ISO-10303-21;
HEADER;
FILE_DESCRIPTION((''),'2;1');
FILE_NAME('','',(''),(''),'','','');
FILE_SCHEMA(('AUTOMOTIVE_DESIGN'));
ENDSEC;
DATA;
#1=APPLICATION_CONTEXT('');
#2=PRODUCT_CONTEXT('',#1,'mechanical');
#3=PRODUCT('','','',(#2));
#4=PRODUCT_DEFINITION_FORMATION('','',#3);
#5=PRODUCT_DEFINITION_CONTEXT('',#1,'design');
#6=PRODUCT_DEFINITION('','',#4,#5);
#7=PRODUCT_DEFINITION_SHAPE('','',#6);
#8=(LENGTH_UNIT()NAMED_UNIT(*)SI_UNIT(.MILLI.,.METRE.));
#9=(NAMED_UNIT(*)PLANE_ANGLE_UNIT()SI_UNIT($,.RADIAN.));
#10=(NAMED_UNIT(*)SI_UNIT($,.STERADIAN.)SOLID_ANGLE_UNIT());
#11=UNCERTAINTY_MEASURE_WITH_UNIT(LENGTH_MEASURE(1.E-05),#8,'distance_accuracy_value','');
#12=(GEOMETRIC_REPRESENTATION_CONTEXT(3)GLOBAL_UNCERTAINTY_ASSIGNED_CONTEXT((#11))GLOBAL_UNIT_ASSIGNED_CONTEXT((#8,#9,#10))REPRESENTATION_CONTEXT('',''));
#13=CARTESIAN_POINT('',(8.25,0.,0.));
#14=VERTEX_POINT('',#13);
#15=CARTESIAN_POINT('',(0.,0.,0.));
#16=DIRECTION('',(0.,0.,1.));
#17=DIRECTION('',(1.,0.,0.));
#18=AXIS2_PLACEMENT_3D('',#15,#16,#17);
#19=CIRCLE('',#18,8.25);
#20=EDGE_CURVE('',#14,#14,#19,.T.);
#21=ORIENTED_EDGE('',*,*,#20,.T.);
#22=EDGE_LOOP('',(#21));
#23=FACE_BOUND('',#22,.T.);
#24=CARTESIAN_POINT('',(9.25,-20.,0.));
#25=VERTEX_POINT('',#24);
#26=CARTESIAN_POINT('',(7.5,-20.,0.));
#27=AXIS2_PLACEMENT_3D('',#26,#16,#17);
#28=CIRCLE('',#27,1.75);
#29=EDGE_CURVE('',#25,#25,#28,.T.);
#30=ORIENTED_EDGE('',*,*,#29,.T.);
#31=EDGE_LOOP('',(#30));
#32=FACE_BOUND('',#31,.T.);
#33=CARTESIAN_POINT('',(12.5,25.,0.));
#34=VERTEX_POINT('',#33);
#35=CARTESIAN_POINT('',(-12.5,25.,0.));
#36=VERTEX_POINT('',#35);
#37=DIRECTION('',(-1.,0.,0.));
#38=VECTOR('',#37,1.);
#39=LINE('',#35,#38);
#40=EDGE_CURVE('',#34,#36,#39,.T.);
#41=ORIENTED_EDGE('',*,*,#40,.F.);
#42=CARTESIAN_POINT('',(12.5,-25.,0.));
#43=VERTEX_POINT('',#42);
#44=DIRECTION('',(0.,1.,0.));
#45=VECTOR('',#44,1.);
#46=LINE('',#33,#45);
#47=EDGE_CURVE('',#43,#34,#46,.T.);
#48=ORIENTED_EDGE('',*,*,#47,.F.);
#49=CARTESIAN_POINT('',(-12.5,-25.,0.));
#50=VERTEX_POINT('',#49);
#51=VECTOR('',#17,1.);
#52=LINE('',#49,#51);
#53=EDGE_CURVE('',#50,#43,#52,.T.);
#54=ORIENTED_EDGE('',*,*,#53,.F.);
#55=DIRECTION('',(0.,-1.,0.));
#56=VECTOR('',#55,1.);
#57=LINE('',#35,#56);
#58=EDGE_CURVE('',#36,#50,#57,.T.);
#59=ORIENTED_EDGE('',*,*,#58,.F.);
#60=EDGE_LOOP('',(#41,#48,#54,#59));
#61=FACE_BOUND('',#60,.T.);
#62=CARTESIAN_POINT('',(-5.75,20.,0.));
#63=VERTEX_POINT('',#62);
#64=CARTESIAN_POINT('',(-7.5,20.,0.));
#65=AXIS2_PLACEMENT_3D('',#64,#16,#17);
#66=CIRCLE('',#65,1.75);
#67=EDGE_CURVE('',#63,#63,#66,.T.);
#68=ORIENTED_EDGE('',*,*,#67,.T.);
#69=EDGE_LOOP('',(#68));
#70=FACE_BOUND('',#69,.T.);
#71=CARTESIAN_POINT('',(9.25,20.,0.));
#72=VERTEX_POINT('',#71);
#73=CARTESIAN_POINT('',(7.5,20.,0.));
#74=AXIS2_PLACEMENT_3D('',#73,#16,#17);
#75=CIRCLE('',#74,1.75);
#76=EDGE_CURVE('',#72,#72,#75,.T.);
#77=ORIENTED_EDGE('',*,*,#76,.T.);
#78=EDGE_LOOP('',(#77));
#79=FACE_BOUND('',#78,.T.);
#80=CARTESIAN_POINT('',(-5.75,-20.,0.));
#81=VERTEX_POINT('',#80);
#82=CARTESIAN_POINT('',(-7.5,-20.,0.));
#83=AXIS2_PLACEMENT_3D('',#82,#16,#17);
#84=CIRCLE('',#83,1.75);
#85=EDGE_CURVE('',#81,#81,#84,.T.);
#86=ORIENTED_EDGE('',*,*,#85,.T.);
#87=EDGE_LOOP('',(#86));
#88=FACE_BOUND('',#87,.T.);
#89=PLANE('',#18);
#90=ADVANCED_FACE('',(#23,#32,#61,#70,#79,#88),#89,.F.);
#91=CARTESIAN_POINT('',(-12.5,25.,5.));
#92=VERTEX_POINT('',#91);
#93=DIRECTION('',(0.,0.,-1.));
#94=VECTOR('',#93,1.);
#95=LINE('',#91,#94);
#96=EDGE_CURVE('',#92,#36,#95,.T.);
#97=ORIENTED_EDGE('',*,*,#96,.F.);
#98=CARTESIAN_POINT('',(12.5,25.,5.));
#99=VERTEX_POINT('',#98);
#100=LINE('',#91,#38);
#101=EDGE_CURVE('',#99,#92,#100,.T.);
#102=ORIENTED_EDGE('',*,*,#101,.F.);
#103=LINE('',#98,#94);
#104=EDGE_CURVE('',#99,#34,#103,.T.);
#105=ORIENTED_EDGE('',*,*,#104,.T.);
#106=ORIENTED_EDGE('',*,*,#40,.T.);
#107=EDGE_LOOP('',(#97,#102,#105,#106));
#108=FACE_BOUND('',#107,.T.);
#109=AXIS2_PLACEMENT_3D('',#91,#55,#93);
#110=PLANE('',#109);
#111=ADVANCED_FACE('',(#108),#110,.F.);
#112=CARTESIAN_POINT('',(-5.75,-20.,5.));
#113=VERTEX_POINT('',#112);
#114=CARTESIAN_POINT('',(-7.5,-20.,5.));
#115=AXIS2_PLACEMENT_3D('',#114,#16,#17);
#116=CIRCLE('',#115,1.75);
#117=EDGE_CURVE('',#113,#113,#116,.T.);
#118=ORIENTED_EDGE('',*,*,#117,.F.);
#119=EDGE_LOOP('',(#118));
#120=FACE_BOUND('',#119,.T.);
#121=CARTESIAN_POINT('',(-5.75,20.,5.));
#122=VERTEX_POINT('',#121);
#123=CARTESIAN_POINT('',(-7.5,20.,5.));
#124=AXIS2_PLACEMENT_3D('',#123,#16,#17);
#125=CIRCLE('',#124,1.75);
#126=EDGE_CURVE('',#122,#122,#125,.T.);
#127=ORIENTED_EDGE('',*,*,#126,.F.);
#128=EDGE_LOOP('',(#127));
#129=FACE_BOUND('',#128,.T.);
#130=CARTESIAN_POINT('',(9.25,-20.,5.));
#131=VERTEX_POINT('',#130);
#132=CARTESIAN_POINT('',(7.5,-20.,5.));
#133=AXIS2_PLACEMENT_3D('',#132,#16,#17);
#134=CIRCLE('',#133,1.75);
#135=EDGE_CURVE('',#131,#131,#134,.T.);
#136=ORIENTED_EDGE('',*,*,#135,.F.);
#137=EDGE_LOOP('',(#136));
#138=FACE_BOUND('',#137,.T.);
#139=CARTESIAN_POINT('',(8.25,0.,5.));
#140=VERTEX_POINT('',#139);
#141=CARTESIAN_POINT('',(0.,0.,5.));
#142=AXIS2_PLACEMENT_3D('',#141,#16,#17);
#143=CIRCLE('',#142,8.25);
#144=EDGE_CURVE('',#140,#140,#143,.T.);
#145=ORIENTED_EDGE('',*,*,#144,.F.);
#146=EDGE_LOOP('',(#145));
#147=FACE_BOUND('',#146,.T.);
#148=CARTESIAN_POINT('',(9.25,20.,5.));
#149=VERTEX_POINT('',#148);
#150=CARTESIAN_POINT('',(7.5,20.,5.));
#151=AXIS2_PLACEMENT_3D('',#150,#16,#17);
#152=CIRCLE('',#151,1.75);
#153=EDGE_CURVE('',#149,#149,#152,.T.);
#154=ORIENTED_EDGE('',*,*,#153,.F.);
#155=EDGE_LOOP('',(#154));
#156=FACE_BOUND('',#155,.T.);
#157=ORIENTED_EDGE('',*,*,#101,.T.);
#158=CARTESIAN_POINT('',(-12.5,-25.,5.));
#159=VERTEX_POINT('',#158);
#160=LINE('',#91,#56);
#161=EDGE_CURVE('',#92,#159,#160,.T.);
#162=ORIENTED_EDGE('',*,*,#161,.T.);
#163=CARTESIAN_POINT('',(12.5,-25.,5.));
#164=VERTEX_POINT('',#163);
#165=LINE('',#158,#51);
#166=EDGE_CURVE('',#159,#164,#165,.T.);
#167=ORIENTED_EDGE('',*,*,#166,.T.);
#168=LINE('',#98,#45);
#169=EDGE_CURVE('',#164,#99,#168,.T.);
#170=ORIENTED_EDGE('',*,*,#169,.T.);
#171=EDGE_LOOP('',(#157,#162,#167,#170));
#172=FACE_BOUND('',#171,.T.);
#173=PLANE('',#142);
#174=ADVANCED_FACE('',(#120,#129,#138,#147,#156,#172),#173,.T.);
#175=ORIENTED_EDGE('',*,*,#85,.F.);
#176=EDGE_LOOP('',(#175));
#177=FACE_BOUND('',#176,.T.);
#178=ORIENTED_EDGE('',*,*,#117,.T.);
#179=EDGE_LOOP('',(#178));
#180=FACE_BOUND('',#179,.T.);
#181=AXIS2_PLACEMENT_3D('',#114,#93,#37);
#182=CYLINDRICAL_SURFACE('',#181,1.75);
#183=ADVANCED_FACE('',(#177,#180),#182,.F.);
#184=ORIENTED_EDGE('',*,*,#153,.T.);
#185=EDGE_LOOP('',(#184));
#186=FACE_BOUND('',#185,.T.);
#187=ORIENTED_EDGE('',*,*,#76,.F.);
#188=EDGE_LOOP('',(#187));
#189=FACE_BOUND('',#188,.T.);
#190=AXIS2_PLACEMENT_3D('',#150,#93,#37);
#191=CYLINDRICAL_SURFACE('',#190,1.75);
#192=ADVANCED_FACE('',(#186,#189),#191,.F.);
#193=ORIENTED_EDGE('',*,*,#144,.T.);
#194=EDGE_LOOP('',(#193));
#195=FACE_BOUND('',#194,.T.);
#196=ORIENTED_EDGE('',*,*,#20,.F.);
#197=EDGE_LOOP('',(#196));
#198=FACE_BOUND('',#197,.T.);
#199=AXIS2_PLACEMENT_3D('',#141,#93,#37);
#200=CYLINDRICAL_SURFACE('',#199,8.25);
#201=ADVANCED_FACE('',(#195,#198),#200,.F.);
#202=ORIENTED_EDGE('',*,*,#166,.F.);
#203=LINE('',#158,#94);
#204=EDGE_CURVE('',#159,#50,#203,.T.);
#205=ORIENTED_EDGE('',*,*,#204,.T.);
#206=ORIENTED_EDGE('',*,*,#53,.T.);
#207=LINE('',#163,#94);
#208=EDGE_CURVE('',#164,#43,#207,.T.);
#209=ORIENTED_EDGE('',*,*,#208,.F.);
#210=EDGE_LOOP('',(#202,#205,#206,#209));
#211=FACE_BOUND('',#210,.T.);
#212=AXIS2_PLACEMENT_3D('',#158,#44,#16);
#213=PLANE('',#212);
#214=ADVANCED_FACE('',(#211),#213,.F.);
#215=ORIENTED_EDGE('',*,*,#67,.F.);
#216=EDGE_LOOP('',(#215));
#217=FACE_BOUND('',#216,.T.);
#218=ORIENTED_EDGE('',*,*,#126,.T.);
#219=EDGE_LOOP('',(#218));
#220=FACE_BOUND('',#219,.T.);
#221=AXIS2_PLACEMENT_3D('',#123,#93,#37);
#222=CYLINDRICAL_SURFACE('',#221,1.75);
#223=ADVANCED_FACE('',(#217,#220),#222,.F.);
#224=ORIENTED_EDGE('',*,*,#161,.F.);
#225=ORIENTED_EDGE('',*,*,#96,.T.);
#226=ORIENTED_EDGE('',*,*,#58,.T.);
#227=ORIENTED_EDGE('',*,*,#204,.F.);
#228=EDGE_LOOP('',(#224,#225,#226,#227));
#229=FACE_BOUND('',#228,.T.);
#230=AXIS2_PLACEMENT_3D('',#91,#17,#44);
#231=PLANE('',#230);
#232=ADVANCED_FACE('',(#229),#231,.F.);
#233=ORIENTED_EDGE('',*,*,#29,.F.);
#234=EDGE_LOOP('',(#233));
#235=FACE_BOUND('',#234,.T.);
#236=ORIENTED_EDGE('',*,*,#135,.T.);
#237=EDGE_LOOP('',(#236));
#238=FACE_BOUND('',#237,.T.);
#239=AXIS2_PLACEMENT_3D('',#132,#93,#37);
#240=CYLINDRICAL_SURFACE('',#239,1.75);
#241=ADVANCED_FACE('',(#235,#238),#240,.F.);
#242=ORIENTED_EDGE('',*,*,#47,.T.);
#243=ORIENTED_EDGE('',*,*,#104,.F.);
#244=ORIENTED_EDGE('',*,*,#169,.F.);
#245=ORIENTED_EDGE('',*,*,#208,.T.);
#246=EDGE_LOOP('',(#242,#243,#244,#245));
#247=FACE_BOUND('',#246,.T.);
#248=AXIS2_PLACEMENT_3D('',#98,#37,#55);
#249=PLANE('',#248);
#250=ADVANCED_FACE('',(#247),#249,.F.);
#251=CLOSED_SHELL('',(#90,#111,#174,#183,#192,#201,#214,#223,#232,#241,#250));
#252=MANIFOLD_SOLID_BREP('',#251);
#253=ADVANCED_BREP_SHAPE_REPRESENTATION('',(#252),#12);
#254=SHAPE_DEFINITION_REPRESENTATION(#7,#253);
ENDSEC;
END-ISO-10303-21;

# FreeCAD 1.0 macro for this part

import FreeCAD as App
import Part
import Sketcher

V = App.Vector
Q = App.Units.Quantity


def add_polygon(sketch, points):
    """Adds a closed chain of lines whose ends are joined by coincident constraints."""
    first, n = sketch.GeometryCount, len(points)
    for a, b in zip(points, points[1:] + points[:1]):
        sketch.addGeometry(Part.LineSegment(App.Vector(*a, 0), App.Vector(*b, 0)), False)
    for i in range(n):
        sketch.addConstraint(Sketcher.Constraint("Coincident", first + i, 2, first + (i + 1) % n, 1))

doc = App.newDocument("Part")
body = doc.addObject("PartDesign::Body", "Body")

# Sketch on XY plane
sketch1 = body.newObject("Sketcher::SketchObject", "Sketch")
sketch1.AttachmentSupport = (doc.getObject("XY_Plane"), [""])
sketch1.MapMode = "FlatFace"
add_polygon(sketch1, [(-12.5, 25), (-12.5, -25), (12.5, -25), (12.5, 25)])  # lines 0-3
sketch1.addGeometry(Part.Circle(V(-7.5, -20, 0), V(0, 0, 1), 1.75), False)  # 4
sketch1.addGeometry(Part.Circle(V(7.5, -20, 0), V(0, 0, 1), 1.75), False)  # 5
sketch1.addGeometry(Part.Circle(V(-7.5, 20, 0), V(0, 0, 1), 1.75), False)  # 6
sketch1.addGeometry(Part.Circle(V(0, 0, 0), V(0, 0, 1), 8.25), False)  # 7
sketch1.addGeometry(Part.Circle(V(7.5, 20, 0), V(0, 0, 1), 1.75), False)  # 8
sketch1.addConstraint([
    Sketcher.Constraint("Vertical", 0),
    Sketcher.Constraint("Horizontal", 1),
    Sketcher.Constraint("Vertical", 2),
    Sketcher.Constraint("Horizontal", 3),
    Sketcher.Constraint("Coincident", 7, 3, -1, 1),
    Sketcher.Constraint("Equal", 4, 5),
    Sketcher.Constraint("Equal", 5, 6),
    Sketcher.Constraint("Equal", 6, 8),
    Sketcher.Constraint("Symmetric", 5, 3, 6, 3, -1, 1),
    Sketcher.Constraint("Symmetric", 4, 3, 8, 3, -1, 1),
    Sketcher.Constraint("Symmetric", 0, 2, 2, 2, -1, 1),
    Sketcher.Constraint("Symmetric", 4, 3, 5, 3, -2),
    Sketcher.Constraint("Diameter", 4, Q("3.5 mm")),
    Sketcher.Constraint("Diameter", 7, Q("16.5 mm")),
    Sketcher.Constraint("DistanceX", 1, 1, 1, 2, Q("25 mm")),
    Sketcher.Constraint("DistanceY", 0, 2, 0, 1, Q("50 mm")),
    Sketcher.Constraint("DistanceY", 4, 3, -1, 1, Q("20 mm")),
    Sketcher.Constraint("DistanceX", 4, 3, 5, 3, Q("15 mm")),
])
pad1 = body.newObject("PartDesign::Pad", "Pad")
pad1.Profile = sketch1
pad1.Length = 5

doc.recompute()
